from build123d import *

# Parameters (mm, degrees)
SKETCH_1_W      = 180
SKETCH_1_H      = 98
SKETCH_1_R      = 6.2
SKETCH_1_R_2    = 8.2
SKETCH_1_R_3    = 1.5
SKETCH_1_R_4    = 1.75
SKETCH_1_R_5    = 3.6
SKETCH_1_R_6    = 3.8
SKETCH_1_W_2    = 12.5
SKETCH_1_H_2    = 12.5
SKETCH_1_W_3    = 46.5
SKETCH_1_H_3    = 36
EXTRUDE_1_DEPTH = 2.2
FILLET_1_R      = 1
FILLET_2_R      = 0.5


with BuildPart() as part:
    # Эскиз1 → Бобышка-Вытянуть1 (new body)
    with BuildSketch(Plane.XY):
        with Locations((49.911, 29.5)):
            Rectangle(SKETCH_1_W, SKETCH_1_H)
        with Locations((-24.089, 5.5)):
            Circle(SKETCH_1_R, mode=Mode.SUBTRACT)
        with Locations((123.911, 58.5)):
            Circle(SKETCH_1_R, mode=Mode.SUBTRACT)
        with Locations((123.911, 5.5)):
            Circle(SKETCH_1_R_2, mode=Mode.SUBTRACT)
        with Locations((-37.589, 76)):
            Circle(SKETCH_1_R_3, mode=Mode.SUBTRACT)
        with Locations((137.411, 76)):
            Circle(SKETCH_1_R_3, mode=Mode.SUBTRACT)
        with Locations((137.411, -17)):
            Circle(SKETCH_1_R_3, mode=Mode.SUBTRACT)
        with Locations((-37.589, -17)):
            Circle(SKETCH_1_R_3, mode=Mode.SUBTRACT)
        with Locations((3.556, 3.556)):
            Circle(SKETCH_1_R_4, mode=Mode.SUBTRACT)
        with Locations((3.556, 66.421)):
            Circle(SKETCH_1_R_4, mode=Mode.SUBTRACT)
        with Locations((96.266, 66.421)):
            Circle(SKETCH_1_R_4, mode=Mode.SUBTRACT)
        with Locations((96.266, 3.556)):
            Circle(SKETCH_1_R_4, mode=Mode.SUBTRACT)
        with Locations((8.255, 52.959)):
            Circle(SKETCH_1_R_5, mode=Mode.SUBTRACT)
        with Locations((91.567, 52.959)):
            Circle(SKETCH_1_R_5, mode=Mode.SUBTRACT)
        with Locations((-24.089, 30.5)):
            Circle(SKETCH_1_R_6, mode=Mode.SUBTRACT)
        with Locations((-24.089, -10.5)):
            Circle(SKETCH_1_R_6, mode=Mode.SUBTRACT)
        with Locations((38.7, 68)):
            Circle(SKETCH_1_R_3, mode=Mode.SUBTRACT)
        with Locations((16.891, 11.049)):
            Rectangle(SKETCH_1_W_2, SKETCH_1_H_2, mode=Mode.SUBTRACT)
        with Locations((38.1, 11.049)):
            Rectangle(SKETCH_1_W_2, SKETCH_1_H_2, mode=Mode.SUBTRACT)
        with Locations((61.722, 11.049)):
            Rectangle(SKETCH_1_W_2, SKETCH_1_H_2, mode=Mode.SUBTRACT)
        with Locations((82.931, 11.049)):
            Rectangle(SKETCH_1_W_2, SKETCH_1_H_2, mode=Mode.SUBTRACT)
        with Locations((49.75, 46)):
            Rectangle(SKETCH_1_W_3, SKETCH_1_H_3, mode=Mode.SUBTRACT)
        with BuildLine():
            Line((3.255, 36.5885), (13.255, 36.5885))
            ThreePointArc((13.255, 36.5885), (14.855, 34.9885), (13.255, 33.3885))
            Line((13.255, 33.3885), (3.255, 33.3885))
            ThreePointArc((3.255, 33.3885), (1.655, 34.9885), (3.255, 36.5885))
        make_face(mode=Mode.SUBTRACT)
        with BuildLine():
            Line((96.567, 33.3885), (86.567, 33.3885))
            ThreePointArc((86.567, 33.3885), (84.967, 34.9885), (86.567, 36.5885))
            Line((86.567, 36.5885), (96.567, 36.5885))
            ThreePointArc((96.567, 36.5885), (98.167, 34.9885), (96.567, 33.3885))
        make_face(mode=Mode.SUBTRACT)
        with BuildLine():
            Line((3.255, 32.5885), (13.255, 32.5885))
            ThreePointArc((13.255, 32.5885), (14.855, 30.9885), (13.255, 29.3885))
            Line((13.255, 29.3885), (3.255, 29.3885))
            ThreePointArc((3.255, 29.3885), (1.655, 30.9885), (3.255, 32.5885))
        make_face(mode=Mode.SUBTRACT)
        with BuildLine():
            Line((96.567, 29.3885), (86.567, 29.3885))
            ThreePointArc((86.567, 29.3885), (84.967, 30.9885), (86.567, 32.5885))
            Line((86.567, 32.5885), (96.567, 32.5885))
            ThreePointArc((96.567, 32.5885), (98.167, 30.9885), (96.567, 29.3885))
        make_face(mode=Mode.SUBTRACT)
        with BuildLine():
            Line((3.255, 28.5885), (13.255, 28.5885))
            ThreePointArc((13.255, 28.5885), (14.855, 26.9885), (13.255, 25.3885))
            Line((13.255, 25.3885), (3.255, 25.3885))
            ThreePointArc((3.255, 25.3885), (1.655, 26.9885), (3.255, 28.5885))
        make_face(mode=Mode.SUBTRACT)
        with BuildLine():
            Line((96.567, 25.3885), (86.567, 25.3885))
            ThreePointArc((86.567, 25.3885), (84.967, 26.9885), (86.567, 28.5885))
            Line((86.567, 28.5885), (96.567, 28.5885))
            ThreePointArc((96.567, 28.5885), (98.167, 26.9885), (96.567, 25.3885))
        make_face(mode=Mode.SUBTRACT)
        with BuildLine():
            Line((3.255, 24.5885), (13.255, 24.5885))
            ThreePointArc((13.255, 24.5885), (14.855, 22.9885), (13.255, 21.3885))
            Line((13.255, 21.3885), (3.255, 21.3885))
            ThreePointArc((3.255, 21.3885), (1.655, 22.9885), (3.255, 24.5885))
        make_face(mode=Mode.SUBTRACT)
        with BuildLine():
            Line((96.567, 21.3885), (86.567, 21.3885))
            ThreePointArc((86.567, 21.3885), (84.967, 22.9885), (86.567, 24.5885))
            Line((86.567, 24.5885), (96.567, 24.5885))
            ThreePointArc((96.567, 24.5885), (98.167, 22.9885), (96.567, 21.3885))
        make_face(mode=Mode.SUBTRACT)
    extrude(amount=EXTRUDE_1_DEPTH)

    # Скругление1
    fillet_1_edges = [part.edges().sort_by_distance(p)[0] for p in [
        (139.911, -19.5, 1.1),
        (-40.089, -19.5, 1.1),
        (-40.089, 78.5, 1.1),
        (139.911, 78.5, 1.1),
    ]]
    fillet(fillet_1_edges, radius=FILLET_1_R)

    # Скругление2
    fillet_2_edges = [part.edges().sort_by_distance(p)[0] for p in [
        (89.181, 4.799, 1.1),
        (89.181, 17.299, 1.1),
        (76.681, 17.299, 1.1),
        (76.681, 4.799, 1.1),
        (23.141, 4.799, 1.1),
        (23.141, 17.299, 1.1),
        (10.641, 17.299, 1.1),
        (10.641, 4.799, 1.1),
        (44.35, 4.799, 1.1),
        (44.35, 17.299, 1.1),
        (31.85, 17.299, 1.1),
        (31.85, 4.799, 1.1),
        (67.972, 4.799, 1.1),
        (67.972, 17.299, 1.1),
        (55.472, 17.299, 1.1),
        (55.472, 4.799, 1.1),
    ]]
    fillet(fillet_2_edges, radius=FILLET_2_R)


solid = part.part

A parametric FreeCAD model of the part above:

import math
import FreeCAD as App
import Part
import Sketcher

V = App.Vector


def edges_at(feature, points):
    """Names of the edges that pass closest to the given points."""
    edges = feature.Shape.Edges
    near = lambda p: min(range(len(edges)), key=lambda i: edges[i].distToShape(Part.Vertex(*p))[0])
    return sorted({f"Edge{near(p) + 1}" for p in points})


def add_polygon(sketch, points):
    """Adds a closed chain of lines whose ends are joined by coincident constraints."""
    first, n = sketch.GeometryCount, len(points)
    for a, b in zip(points, points[1:] + points[:1]):
        sketch.addGeometry(Part.LineSegment(App.Vector(*a, 0), App.Vector(*b, 0)), False)
    for i in range(n):
        sketch.addConstraint(Sketcher.Constraint("Coincident", first + i, 2, first + (i + 1) % n, 1))

doc = App.newDocument("Part")
body = doc.addObject("PartDesign::Body", "Body")

sketch1 = doc.addObject("Sketcher::SketchObject", "Sketch")
body.addObject(sketch1)
sketch1.AttachmentSupport = (doc.XY_Plane, [""])
sketch1.MapMode = "FlatFace"
add_polygon(sketch1, [(-40.1, 78.5), (-40.1, -19.5), (139.9, -19.5), (139.9, 78.5)])
sketch1.addGeometry(Part.Circle(V(-37.6, -17, 0), V(0, 0, 1), 1.5), False)
sketch1.addGeometry(Part.Circle(V(-24.1, -10.5, 0), V(0, 0, 1), 3.8), False)
sketch1.addGeometry(Part.Circle(V(3.6, 3.6, 0), V(0, 0, 1), 1.8), False)
sketch1.addGeometry(Part.Circle(V(-24.1, 5.5, 0), V(0, 0, 1), 6.2), False)
add_polygon(sketch1, [(23.1, 4.8), (10.6, 4.8), (10.6, 17.3), (23.1, 17.3)])
add_polygon(sketch1, [(44.4, 4.8), (31.9, 4.8), (31.9, 17.3), (44.4, 17.3)])
sketch1.addGeometry(Part.ArcOfCircle(Part.Circle(V(3.3, 23, 0), V(0, 0, 1), 1.6), math.radians(90), math.radians(270)), False)
sketch1.addGeometry(Part.LineSegment(V(3.3, 24.6, 0), V(13.3, 24.6, 0)), False)
sketch1.addGeometry(Part.ArcOfCircle(Part.Circle(V(13.3, 23, 0), V(0, 0, 1), 1.6), math.radians(-90), math.radians(90)), False)
sketch1.addGeometry(Part.LineSegment(V(13.3, 21.4, 0), V(3.3, 21.4, 0)), False)
sketch1.addGeometry(Part.ArcOfCircle(Part.Circle(V(3.3, 27, 0), V(0, 0, 1), 1.6), math.radians(90), math.radians(270)), False)
sketch1.addGeometry(Part.LineSegment(V(3.3, 28.6, 0), V(13.3, 28.6, 0)), False)
sketch1.addGeometry(Part.ArcOfCircle(Part.Circle(V(13.3, 27, 0), V(0, 0, 1), 1.6), math.radians(-90), math.radians(90)), False)
sketch1.addGeometry(Part.LineSegment(V(13.3, 25.4, 0), V(3.3, 25.4, 0)), False)
sketch1.addGeometry(Part.Circle(V(137.4, -17, 0), V(0, 0, 1), 1.5), False)
sketch1.addGeometry(Part.Circle(V(96.3, 3.6, 0), V(0, 0, 1), 1.8), False)
add_polygon(sketch1, [(68, 4.8), (55.5, 4.8), (55.5, 17.3), (68, 17.3)])
add_polygon(sketch1, [(89.2, 4.8), (76.7, 4.8), (76.7, 17.3), (89.2, 17.3)])
sketch1.addGeometry(Part.ArcOfCircle(Part.Circle(V(96.6, 23, 0), V(0, 0, 1), 1.6), math.radians(-90), math.radians(90)), False)
sketch1.addGeometry(Part.LineSegment(V(96.6, 21.4, 0), V(86.6, 21.4, 0)), False)
sketch1.addGeometry(Part.ArcOfCircle(Part.Circle(V(86.6, 23, 0), V(0, 0, 1), 1.6), math.radians(90), math.radians(270)), False)
sketch1.addGeometry(Part.LineSegment(V(86.6, 24.6, 0), V(96.6, 24.6, 0)), False)
sketch1.addGeometry(Part.ArcOfCircle(Part.Circle(V(96.6, 27, 0), V(0, 0, 1), 1.6), math.radians(-90), math.radians(90)), False)
sketch1.addGeometry(Part.LineSegment(V(96.6, 25.4, 0), V(86.6, 25.4, 0)), False)
sketch1.addGeometry(Part.ArcOfCircle(Part.Circle(V(86.6, 27, 0), V(0, 0, 1), 1.6), math.radians(90), math.radians(270)), False)
sketch1.addGeometry(Part.LineSegment(V(86.6, 28.6, 0), V(96.6, 28.6, 0)), False)
sketch1.addGeometry(Part.Circle(V(123.9, 5.5, 0), V(0, 0, 1), 8.2), False)
sketch1.addGeometry(Part.Circle(V(-24.1, 30.5, 0), V(0, 0, 1), 3.8), False)
sketch1.addGeometry(Part.ArcOfCircle(Part.Circle(V(3.3, 31, 0), V(0, 0, 1), 1.6), math.radians(90), math.radians(270)), False)
sketch1.addGeometry(Part.LineSegment(V(3.3, 32.6, 0), V(13.3, 32.6, 0)), False)
sketch1.addGeometry(Part.ArcOfCircle(Part.Circle(V(13.3, 31, 0), V(0, 0, 1), 1.6), math.radians(-90), math.radians(90)), False)
sketch1.addGeometry(Part.LineSegment(V(13.3, 29.4, 0), V(3.3, 29.4, 0)), False)
sketch1.addGeometry(Part.ArcOfCircle(Part.Circle(V(3.3, 35, 0), V(0, 0, 1), 1.6), math.radians(90), math.radians(270)), False)
sketch1.addGeometry(Part.LineSegment(V(3.3, 36.6, 0), V(13.3, 36.6, 0)), False)
sketch1.addGeometry(Part.ArcOfCircle(Part.Circle(V(13.3, 35, 0), V(0, 0, 1), 1.6), math.radians(-90), math.radians(90)), False)
sketch1.addGeometry(Part.LineSegment(V(13.3, 33.4, 0), V(3.3, 33.4, 0)), False)
sketch1.addGeometry(Part.Circle(V(8.3, 53, 0), V(0, 0, 1), 3.6), False)
add_polygon(sketch1, [(73, 28), (26.5, 28), (26.5, 64), (73, 64)])
sketch1.addGeometry(Part.Circle(V(-37.6, 76, 0), V(0, 0, 1), 1.5), False)
sketch1.addGeometry(Part.Circle(V(3.6, 66.4, 0), V(0, 0, 1), 1.8), False)
sketch1.addGeometry(Part.Circle(V(38.7, 68, 0), V(0, 0, 1), 1.5), False)
sketch1.addGeometry(Part.ArcOfCircle(Part.Circle(V(96.6, 31, 0), V(0, 0, 1), 1.6), math.radians(-90), math.radians(90)), False)
sketch1.addGeometry(Part.LineSegment(V(96.6, 29.4, 0), V(86.6, 29.4, 0)), False)
sketch1.addGeometry(Part.ArcOfCircle(Part.Circle(V(86.6, 31, 0), V(0, 0, 1), 1.6), math.radians(90), math.radians(270)), False)
sketch1.addGeometry(Part.LineSegment(V(86.6, 32.6, 0), V(96.6, 32.6, 0)), False)
sketch1.addGeometry(Part.ArcOfCircle(Part.Circle(V(96.6, 35, 0), V(0, 0, 1), 1.6), math.radians(-90), math.radians(90)), False)
sketch1.addGeometry(Part.LineSegment(V(96.6, 33.4, 0), V(86.6, 33.4, 0)), False)
sketch1.addGeometry(Part.ArcOfCircle(Part.Circle(V(86.6, 35, 0), V(0, 0, 1), 1.6), math.radians(90), math.radians(270)), False)
sketch1.addGeometry(Part.LineSegment(V(86.6, 36.6, 0), V(96.6, 36.6, 0)), False)
sketch1.addGeometry(Part.Circle(V(91.6, 53, 0), V(0, 0, 1), 3.6), False)
sketch1.addGeometry(Part.Circle(V(123.9, 58.5, 0), V(0, 0, 1), 6.2), False)
sketch1.addGeometry(Part.Circle(V(96.3, 66.4, 0), V(0, 0, 1), 1.8), False)
sketch1.addGeometry(Part.Circle(V(137.4, 76, 0), V(0, 0, 1), 1.5), False)
sketch1.addConstraint([
    Sketcher.Constraint("Tangent", 16, 1, 17, 1),
    Sketcher.Constraint("Tangent", 17, 2, 18, 2),
    Sketcher.Constraint("Tangent", 18, 1, 19, 1),
    Sketcher.Constraint("Tangent", 19, 2, 16, 2),
    Sketcher.Constraint("Tangent", 20, 1, 21, 1),
    Sketcher.Constraint("Tangent", 21, 2, 22, 2),
    Sketcher.Constraint("Tangent", 22, 1, 23, 1),
    Sketcher.Constraint("Tangent", 23, 2, 20, 2),
    Sketcher.Constraint("Tangent", 34, 1, 35, 1),
    Sketcher.Constraint("Tangent", 35, 2, 36, 2),
    Sketcher.Constraint("Tangent", 36, 1, 37, 1),
    Sketcher.Constraint("Tangent", 37, 2, 34, 2),
    Sketcher.Constraint("Tangent", 38, 1, 39, 1),
    Sketcher.Constraint("Tangent", 39, 2, 40, 2),
    Sketcher.Constraint("Tangent", 40, 1, 41, 1),
    Sketcher.Constraint("Tangent", 41, 2, 38, 2),
    Sketcher.Constraint("Tangent", 44, 1, 45, 1),
    Sketcher.Constraint("Tangent", 45, 2, 46, 2),
    Sketcher.Constraint("Tangent", 46, 1, 47, 1),
    Sketcher.Constraint("Tangent", 47, 2, 44, 2),
    Sketcher.Constraint("Tangent", 48, 1, 49, 1),
    Sketcher.Constraint("Tangent", 49, 2, 50, 2),
    Sketcher.Constraint("Tangent", 50, 1, 51, 1),
    Sketcher.Constraint("Tangent", 51, 2, 48, 2),
    Sketcher.Constraint("Tangent", 60, 1, 61, 1),
    Sketcher.Constraint("Tangent", 61, 2, 62, 2),
    Sketcher.Constraint("Tangent", 62, 1, 63, 1),
    Sketcher.Constraint("Tangent", 63, 2, 60, 2),
    Sketcher.Constraint("Tangent", 64, 1, 65, 1),
    Sketcher.Constraint("Tangent", 65, 2, 66, 2),
    Sketcher.Constraint("Tangent", 66, 1, 67, 1),
    Sketcher.Constraint("Tangent", 67, 2, 64, 2),
    Sketcher.Constraint("Vertical", 0),
    Sketcher.Constraint("Horizontal", 1),
    Sketcher.Constraint("Vertical", 2),
    Sketcher.Constraint("Horizontal", 3),
    Sketcher.Constraint("Horizontal", 8),
    Sketcher.Constraint("Vertical", 9),
    Sketcher.Constraint("Horizontal", 10),
    Sketcher.Constraint("Vertical", 11),
    Sketcher.Constraint("Horizontal", 12),
    Sketcher.Constraint("Vertical", 13),
    Sketcher.Constraint("Horizontal", 14),
    Sketcher.Constraint("Vertical", 15),
    Sketcher.Constraint("Horizontal", 17),
    Sketcher.Constraint("Horizontal", 19),
    Sketcher.Constraint("Horizontal", 21),
    Sketcher.Constraint("Horizontal", 23),
    Sketcher.Constraint("Horizontal", 26),
    Sketcher.Constraint("Vertical", 27),
    Sketcher.Constraint("Horizontal", 28),
    Sketcher.Constraint("Vertical", 29),
    Sketcher.Constraint("Horizontal", 30),
    Sketcher.Constraint("Vertical", 31),
    Sketcher.Constraint("Horizontal", 32),
    Sketcher.Constraint("Vertical", 33),
    Sketcher.Constraint("Horizontal", 35),
    Sketcher.Constraint("Horizontal", 37),
    Sketcher.Constraint("Horizontal", 39),
    Sketcher.Constraint("Horizontal", 41),
    Sketcher.Constraint("Horizontal", 45),
    Sketcher.Constraint("Horizontal", 47),
    Sketcher.Constraint("Horizontal", 49),
    Sketcher.Constraint("Horizontal", 51),
    Sketcher.Constraint("Horizontal", 53),
    Sketcher.Constraint("Vertical", 54),
    Sketcher.Constraint("Horizontal", 55),
    Sketcher.Constraint("Vertical", 56),
    Sketcher.Constraint("Horizontal", 61),
    Sketcher.Constraint("Horizontal", 63),
    Sketcher.Constraint("Horizontal", 65),
    Sketcher.Constraint("Horizontal", 67),
    Sketcher.Constraint("Equal", 18, 20),
    Sketcher.Constraint("Equal", 4, 24),
    Sketcher.Constraint("Equal", 6, 25),
    Sketcher.Constraint("Equal", 22, 34),
    Sketcher.Constraint("Equal", 36, 38),
    Sketcher.Constraint("Equal", 5, 43),
    Sketcher.Constraint("Equal", 40, 44),
    Sketcher.Constraint("Equal", 46, 48),
    Sketcher.Constraint("Equal", 24, 57),
    Sketcher.Constraint("Equal", 25, 58),
    Sketcher.Constraint("Equal", 57, 59),
    Sketcher.Constraint("Equal", 50, 60),
    Sketcher.Constraint("Equal", 62, 64),
    Sketcher.Constraint("Equal", 52, 68),
    Sketcher.Constraint("Equal", 7, 69),
    Sketcher.Constraint("Equal", 58, 70),
    Sketcher.Constraint("Equal", 59, 71),
    Sketcher.Constraint("Horizontal", 4, 3, 24, 3),
    Sketcher.Constraint("Horizontal", 6, 3, 25, 3),
    Sketcher.Constraint("Horizontal", 18, 3, 34, 3),
    Sketcher.Constraint("Horizontal", 22, 3, 38, 3),
    Sketcher.Constraint("Horizontal", 7, 3, 42, 3),
    Sketcher.Constraint("Horizontal", 46, 3, 60, 3),
    Sketcher.Constraint("Horizontal", 50, 3, 64, 3),
    Sketcher.Constraint("Horizontal", 52, 3, 68, 3),
    Sketcher.Constraint("Horizontal", 58, 3, 70, 3),
    Sketcher.Constraint("Horizontal", 57, 3, 71, 3),
    Sketcher.Constraint("Horizontal", 11, 2, 12, 2),
    Sketcher.Constraint("Horizontal", 10, 2, 13, 2),
    Sketcher.Constraint("Horizontal", 15, 2, 26, 2),
    Sketcher.Constraint("Horizontal", 14, 2, 27, 2),
    Sketcher.Constraint("Horizontal", 29, 2, 30, 2),
    Sketcher.Constraint("Horizontal", 28, 2, 31, 2),
    Sketcher.Constraint("Vertical", 5, 3, 7, 3),
    Sketcher.Constraint("Vertical", 16, 3, 20, 3),
    Sketcher.Constraint("Vertical", 18, 3, 22, 3),
    Sketcher.Constraint("Vertical", 34, 3, 38, 3),
    Sketcher.Constraint("Vertical", 36, 3, 40, 3),
    Sketcher.Constraint("Vertical", 7, 3, 43, 3),
    Sketcher.Constraint("Vertical", 20, 3, 44, 3),
    Sketcher.Constraint("Vertical", 22, 3, 46, 3),
    Sketcher.Constraint("Vertical", 44, 3, 48, 3),
    Sketcher.Constraint("Vertical", 46, 3, 50, 3),
    Sketcher.Constraint("Vertical", 4, 3, 57, 3),
    Sketcher.Constraint("Vertical", 6, 3, 58, 3),
    Sketcher.Constraint("Vertical", 38, 3, 60, 3),
    Sketcher.Constraint("Vertical", 40, 3, 62, 3),
    Sketcher.Constraint("Vertical", 60, 3, 64, 3),
    Sketcher.Constraint("Vertical", 62, 3, 66, 3),
    Sketcher.Constraint("Vertical", 42, 3, 69, 3),
    Sketcher.Constraint("Vertical", 25, 3, 70, 3),
    Sketcher.Constraint("Vertical", 24, 3, 71, 3),
    Sketcher.Constraint("Equal", 10, 12),
    Sketcher.Constraint("Equal", 14, 26),
    Sketcher.Constraint("Equal", 28, 30),
    Sketcher.Constraint("Equal", 23, 35),
    Sketcher.Constraint("Equal", 32, 9),
    Sketcher.Constraint("Diameter", 4, 3.0),
    Sketcher.Constraint("Diameter", 5, 7.6),
    Sketcher.Constraint("Diameter", 6, 3.5),
    Sketcher.Constraint("Diameter", 7, 12.4),
    Sketcher.Constraint("Diameter", 42, 16.4),
    Sketcher.Constraint("Diameter", 52, 7.2),
    Sketcher.Constraint("Radius", 16, 1.6),
    Sketcher.Constraint("DistanceX", 1, 1, 1, 2, 180.0),
    Sketcher.Constraint("DistanceX", 17, 1, 17, 2, 10.0),
    Sketcher.Constraint("DistanceY", 0, 2, 0, 1, 98.0),
    Sketcher.Constraint("DistanceY", 54, 1, 54, 2, 36.0),
    Sketcher.Constraint("DistanceX", 8, 2, 8, 1, 12.5),
    Sketcher.Constraint("DistanceX", 53, 2, 53, 1, 46.5),
    Sketcher.Constraint("DistanceY", 4, 3, -1, 1, 17.0),
    Sketcher.Constraint("DistanceY", -1, 1, 57, 3, 76.0),
    Sketcher.Constraint("DistanceY", -1, 1, 59, 3, 68.0),
    Sketcher.Constraint("DistanceY", -1, 1, 53, 2, 28.0),
    Sketcher.Constraint("DistanceX", -1, 1, 55, 2, 73.0),
    Sketcher.Constraint("DistanceY", 5, 3, -1, 1, 10.5),
    Sketcher.Constraint("DistanceY", -1, 1, 7, 3, 5.5),
    Sketcher.Constraint("DistanceY", -1, 1, 43, 3, 30.5),
    Sketcher.Constraint("DistanceX", -1, 1, 59, 3, 38.7),
    Sketcher.Constraint("DistanceY", -1, 1, 69, 3, 58.5),
    Sketcher.Constraint("DistanceY", 0, 2, -1, 1, 19.5),
    Sketcher.Constraint("DistanceX", -1, 1, 12, 2, 31.85),
    Sketcher.Constraint("DistanceX", 4, 3, -1, 1, 37.589),
    Sketcher.Constraint("DistanceX", 5, 3, -1, 1, 24.089),
    Sketcher.Constraint("DistanceX", -1, 1, 6, 3, 3.556),
    Sketcher.Constraint("DistanceY", -1, 1, 6, 3, 3.556),
    Sketcher.Constraint("DistanceX", -1, 1, 16, 3, 3.255),
    Sketcher.Constraint("DistanceX", -1, 1, 24, 3, 137.411),
    Sketcher.Constraint("DistanceX", -1, 1, 25, 3, 96.266),
    Sketcher.Constraint("DistanceX", -1, 1, 34, 3, 96.567),
    Sketcher.Constraint("DistanceX", -1, 1, 42, 3, 123.911),
    Sketcher.Constraint("DistanceX", -1, 1, 52, 3, 8.255),
    Sketcher.Constraint("DistanceY", -1, 1, 52, 3, 52.959),
    Sketcher.Constraint("DistanceY", -1, 1, 58, 3, 66.421),
    Sketcher.Constraint("DistanceX", -1, 1, 68, 3, 91.567),
    Sketcher.Constraint("DistanceX", 0, 2, -1, 1, 40.089),
    Sketcher.Constraint("DistanceX", -1, 1, 8, 2, 10.641),
    Sketcher.Constraint("DistanceY", -1, 1, 8, 2, 4.799),
    Sketcher.Constraint("DistanceX", -1, 1, 26, 2, 55.472),
    Sketcher.Constraint("DistanceX", -1, 1, 30, 2, 76.681),
    Sketcher.Constraint("DistanceY", -1, 1, 16, 3, 22.9885),
    Sketcher.Constraint("DistanceY", -1, 1, 20, 3, 26.9885),
    Sketcher.Constraint("DistanceY", -1, 1, 44, 3, 30.9885),
    Sketcher.Constraint("DistanceY", -1, 1, 48, 3, 34.9885),
])
pad1 = doc.addObject("PartDesign::Pad", "Pad")
body.addObject(pad1)
pad1.Profile = sketch1
pad1.Length = 2.2
doc.recompute()

fillet = doc.addObject("PartDesign::Fillet", "Fillet")
body.addObject(fillet)
fillet.Base = (pad1, edges_at(pad1, [
    (139.911, -19.5, 1.1),
    (-40.089, -19.5, 1.1),
    (-40.089, 78.5, 1.1),
    (139.911, 78.5, 1.1),
]))
fillet.Radius = 1
doc.recompute()

fillet2 = doc.addObject("PartDesign::Fillet", "Fillet001")
body.addObject(fillet2)
fillet2.Base = (fillet, edges_at(fillet, [
    (89.181, 4.799, 1.1),
    (89.181, 17.299, 1.1),
    (76.681, 17.299, 1.1),
    (76.681, 4.799, 1.1),
    (23.141, 4.799, 1.1),
    (23.141, 17.299, 1.1),
    (10.641, 17.299, 1.1),
    (10.641, 4.799, 1.1),
    (44.35, 4.799, 1.1),
    (44.35, 17.299, 1.1),
    (31.85, 17.299, 1.1),
    (31.85, 4.799, 1.1),
    (67.972, 4.799, 1.1),
    (67.972, 17.299, 1.1),
    (55.472, 17.299, 1.1),
    (55.472, 4.799, 1.1),
]))
fillet2.Radius = 0.5

doc.recompute()
